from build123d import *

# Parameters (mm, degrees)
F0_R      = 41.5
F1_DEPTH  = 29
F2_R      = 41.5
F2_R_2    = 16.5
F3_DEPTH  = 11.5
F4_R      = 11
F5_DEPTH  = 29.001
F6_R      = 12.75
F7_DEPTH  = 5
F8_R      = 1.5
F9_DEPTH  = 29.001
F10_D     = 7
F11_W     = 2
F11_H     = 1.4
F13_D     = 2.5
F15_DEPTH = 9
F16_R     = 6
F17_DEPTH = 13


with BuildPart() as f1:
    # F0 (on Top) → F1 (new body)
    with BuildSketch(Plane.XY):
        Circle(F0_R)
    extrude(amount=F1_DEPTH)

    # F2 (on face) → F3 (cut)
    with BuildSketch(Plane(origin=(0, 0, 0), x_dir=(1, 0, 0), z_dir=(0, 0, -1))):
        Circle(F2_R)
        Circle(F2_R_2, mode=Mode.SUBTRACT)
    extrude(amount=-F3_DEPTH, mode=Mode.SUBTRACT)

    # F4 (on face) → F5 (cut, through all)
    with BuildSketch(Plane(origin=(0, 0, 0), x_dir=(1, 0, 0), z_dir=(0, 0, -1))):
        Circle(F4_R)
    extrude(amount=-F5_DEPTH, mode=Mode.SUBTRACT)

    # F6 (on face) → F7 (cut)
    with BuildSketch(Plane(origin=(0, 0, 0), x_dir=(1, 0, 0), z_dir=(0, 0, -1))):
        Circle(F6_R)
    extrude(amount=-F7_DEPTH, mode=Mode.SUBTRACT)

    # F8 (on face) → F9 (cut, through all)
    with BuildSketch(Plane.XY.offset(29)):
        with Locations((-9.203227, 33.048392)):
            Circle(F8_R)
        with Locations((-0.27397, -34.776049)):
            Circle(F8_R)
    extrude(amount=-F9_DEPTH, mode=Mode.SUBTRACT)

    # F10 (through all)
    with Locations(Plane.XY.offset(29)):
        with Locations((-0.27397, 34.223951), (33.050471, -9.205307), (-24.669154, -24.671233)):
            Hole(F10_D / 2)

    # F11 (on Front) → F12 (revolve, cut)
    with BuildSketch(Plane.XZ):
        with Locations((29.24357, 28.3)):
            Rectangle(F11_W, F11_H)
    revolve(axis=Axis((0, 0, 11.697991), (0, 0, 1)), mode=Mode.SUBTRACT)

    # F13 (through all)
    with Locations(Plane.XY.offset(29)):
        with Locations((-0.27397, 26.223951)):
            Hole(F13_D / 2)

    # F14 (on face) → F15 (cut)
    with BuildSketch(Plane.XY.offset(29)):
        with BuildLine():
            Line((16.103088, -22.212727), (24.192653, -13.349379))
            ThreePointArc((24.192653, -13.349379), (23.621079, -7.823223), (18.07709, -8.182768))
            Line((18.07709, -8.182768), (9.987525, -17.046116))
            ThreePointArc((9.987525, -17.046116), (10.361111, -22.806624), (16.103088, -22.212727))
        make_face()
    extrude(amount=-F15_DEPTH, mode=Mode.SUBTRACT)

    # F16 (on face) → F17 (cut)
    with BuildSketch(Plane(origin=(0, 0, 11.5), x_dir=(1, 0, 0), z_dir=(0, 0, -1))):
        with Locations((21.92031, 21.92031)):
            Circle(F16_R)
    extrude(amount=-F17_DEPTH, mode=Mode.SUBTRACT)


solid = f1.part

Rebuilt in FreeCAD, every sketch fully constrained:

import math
import FreeCAD as App
import Part
import Sketcher


def add_polygon(sketch, points):
    """Adds a closed chain of lines whose ends are joined by coincident constraints."""
    first, n = sketch.GeometryCount, len(points)
    for a, b in zip(points, points[1:] + points[:1]):
        sketch.addGeometry(Part.LineSegment(App.Vector(*a, 0), App.Vector(*b, 0)), False)
    for i in range(n):
        sketch.addConstraint(Sketcher.Constraint("Coincident", first + i, 2, first + (i + 1) % n, 1))

doc = App.newDocument("Part")
params = doc.addObject("Spreadsheet::Sheet", "Params")
for row, (alias, value) in enumerate([
    ("sketch1_diameter", "83 mm"),
    ("pad1_length", "29 mm"),
    ("sketch2_diameter", "83 mm"),
    ("sketch2_diameter2", "33 mm"),
    ("pocket1_length", "11.5 mm"),
    ("sketch3_diameter", "22 mm"),
    ("sketch4_diameter", "25.5 mm"),
    ("pocket3_length", "5 mm"),
    ("sketch5_diameter", "3 mm"),
    ("sketch6_diameter", "7 mm"),
    ("hole_diameter", "7 mm"),
    ("sketch7_width", "2 mm"),
    ("sketch7_height", "1.4 mm"),
    ("groove_angle", "360 deg"),
    ("sketch8_diameter", "2.5 mm"),
    ("hole2_diameter", "2.5 mm"),
    ("sketch9_length", "12 mm"),
    ("pocket5_length", "9 mm"),
    ("sketch10_diameter", "12 mm"),
    ("pocket6_length", "13 mm"),
], start=1):
    params.set(f"A{row}", alias)
    params.set(f"B{row}", "=" + value)
    params.setAlias(f"B{row}", alias)

body = doc.addObject("PartDesign::Body", "Body")

sketch1 = body.newObject("Sketcher::SketchObject", "Sketch")
sketch1.AttachmentSupport = (doc.getObject("XY_Plane"), [""])
sketch1.MapMode = "FlatFace"
sketch1.addGeometry(Part.Circle(App.Vector(0, 0, 0), App.Vector(0, 0, 1), 42), False)
sketch1.addConstraint([
    Sketcher.Constraint("Coincident", 0, 3, -1, 1),
    Sketcher.Constraint("Diameter", 0, 83.0),
])
sketch1.setExpression("Constraints[1]", "Params.sketch1_diameter")
pad1 = body.newObject("PartDesign::Pad", "Pad")
pad1.Profile = sketch1
pad1.setExpression("Length", "Params.pad1_length")

sketch2 = body.newObject("Sketcher::SketchObject", "Sketch001")
sketch2.AttachmentSupport = (doc.getObject("XY_Plane"), [""])
sketch2.MapMode = "FlatFace"
sketch2.addGeometry([
    Part.Circle(App.Vector(0, 0, 0), App.Vector(0, 0, 1), 42),
    Part.Circle(App.Vector(0, 0, 0), App.Vector(0, 0, 1), 16),
], False)
sketch2.addConstraint([
    Sketcher.Constraint("Coincident", 0, 3, -1, 1),
    Sketcher.Constraint("Coincident", 1, 3, -1, 1),
    Sketcher.Constraint("Diameter", 0, 83.0),
    Sketcher.Constraint("Diameter", 1, 33.0),
])
sketch2.setExpression("Constraints[2]", "Params.sketch2_diameter")
sketch2.setExpression("Constraints[3]", "Params.sketch2_diameter2")
pocket1 = body.newObject("PartDesign::Pocket", "Pocket")
pocket1.Profile = sketch2
pocket1.setExpression("Length", "Params.pocket1_length")
pocket1.Reversed = True

sketch3 = body.newObject("Sketcher::SketchObject", "Sketch002")
sketch3.AttachmentSupport = (doc.getObject("XY_Plane"), [""])
sketch3.MapMode = "FlatFace"
sketch3.addGeometry(Part.Circle(App.Vector(0, 0, 0), App.Vector(0, 0, 1), 11), False)
sketch3.addConstraint([
    Sketcher.Constraint("Coincident", 0, 3, -1, 1),
    Sketcher.Constraint("Diameter", 0, 22.0),
])
sketch3.setExpression("Constraints[1]", "Params.sketch3_diameter")
pocket2 = body.newObject("PartDesign::Pocket", "Pocket001")
pocket2.Profile = sketch3
pocket2.Type = "ThroughAll"
pocket2.Reversed = True

sketch4 = body.newObject("Sketcher::SketchObject", "Sketch003")
sketch4.AttachmentSupport = (doc.getObject("XY_Plane"), [""])
sketch4.MapMode = "FlatFace"
sketch4.addGeometry(Part.Circle(App.Vector(0, 0, 0), App.Vector(0, 0, 1), 13), False)
sketch4.addConstraint([
    Sketcher.Constraint("Coincident", 0, 3, -1, 1),
    Sketcher.Constraint("Diameter", 0, 25.5),
])
sketch4.setExpression("Constraints[1]", "Params.sketch4_diameter")
pocket3 = body.newObject("PartDesign::Pocket", "Pocket002")
pocket3.Profile = sketch4
pocket3.setExpression("Length", "Params.pocket3_length")
pocket3.Reversed = True

sketch5 = body.newObject("Sketcher::SketchObject", "Sketch004")
sketch5.AttachmentSupport = (doc.getObject("XY_Plane"), [""])
sketch5.MapMode = "FlatFace"
sketch5.AttachmentOffset = App.Placement(App.Vector(0, 0, 29), App.Rotation())
sketch5.addGeometry([
    Part.Circle(App.Vector(-9.2, 33, 0), App.Vector(0, 0, 1), 1.5),
    Part.Circle(App.Vector(-0.3, -34.8, 0), App.Vector(0, 0, 1), 1.5),
], False)
sketch5.addConstraint([
    Sketcher.Constraint("Equal", 0, 1),
    Sketcher.Constraint("Diameter", 0, 3.0),
    Sketcher.Constraint("DistanceX", 1, 3, -1, 1, 0.27397),
    Sketcher.Constraint("DistanceY", 1, 3, -1, 1, 34.776049),
    Sketcher.Constraint("DistanceY", 1, 3, 0, 3, 67.824441),
    Sketcher.Constraint("DistanceX", 0, 3, -1, 1, 9.203227),
])
sketch5.setExpression("Constraints[1]", "Params.sketch5_diameter")
pocket4 = body.newObject("PartDesign::Pocket", "Pocket003")
pocket4.Profile = sketch5
pocket4.Type = "ThroughAll"

sketch6 = body.newObject("Sketcher::SketchObject", "Sketch005")
sketch6.AttachmentSupport = (doc.getObject("XY_Plane"), [""])
sketch6.MapMode = "FlatFace"
sketch6.AttachmentOffset = App.Placement(App.Vector(0, 0, 29), App.Rotation())
sketch6.addGeometry([
    Part.Circle(App.Vector(-0.3, 34.2, 0), App.Vector(0, 0, 1), 3.5),
    Part.Circle(App.Vector(33.1, -9.2, 0), App.Vector(0, 0, 1), 3.5),
    Part.Circle(App.Vector(-24.7, -24.7, 0), App.Vector(0, 0, 1), 3.5),
], False)
sketch6.addConstraint([
    Sketcher.Constraint("Equal", 0, 1),
    Sketcher.Constraint("Equal", 1, 2),
    Sketcher.Constraint("Diameter", 0, 7.0),
    Sketcher.Constraint("DistanceX", 0, 3, -1, 1, 0.27397),
    Sketcher.Constraint("DistanceY", -1, 1, 0, 3, 34.223951),
    Sketcher.Constraint("DistanceX", -1, 1, 1, 3, 33.050471),
    Sketcher.Constraint("DistanceY", 1, 3, -1, 1, 9.205307),
    Sketcher.Constraint("DistanceX", 2, 3, -1, 1, 24.669154),
    Sketcher.Constraint("DistanceY", 2, 3, -1, 1, 24.671233),
])
sketch6.setExpression("Constraints[2]", "Params.sketch6_diameter")
doc.recompute()
hole = body.newObject("PartDesign::Hole", "Hole")
hole.Profile = sketch6
hole.ThreadType = "None"
hole.setExpression("Diameter", "Params.hole_diameter")
hole.DepthType = "ThroughAll"

sketch7 = body.newObject("Sketcher::SketchObject", "Sketch006")
sketch7.AttachmentSupport = (doc.getObject("XZ_Plane"), [""])
sketch7.MapMode = "FlatFace"
add_polygon(sketch7, [(28.2, 29), (28.2, 27.6), (30.2, 27.6), (30.2, 29)])
sketch7.addConstraint([
    Sketcher.Constraint("Vertical", 0),
    Sketcher.Constraint("Horizontal", 1),
    Sketcher.Constraint("Vertical", 2),
    Sketcher.Constraint("Horizontal", 3),
    Sketcher.Constraint("DistanceX", 1, 1, 1, 2, 2.0),
    Sketcher.Constraint("DistanceY", 0, 2, 0, 1, 1.4),
    Sketcher.Constraint("DistanceY", -1, 1, 2, 2, 29.0),
    Sketcher.Constraint("DistanceX", -1, 1, 0, 2, 28.24357),
])
sketch7.setExpression("Constraints[8]", "Params.sketch7_width")
sketch7.setExpression("Constraints[9]", "Params.sketch7_height")
groove = body.newObject("PartDesign::Groove", "Groove")
groove.Profile = sketch7
groove.ReferenceAxis = (sketch7, ["V_Axis"])
groove.setExpression("Angle", "Params.groove_angle")

sketch8 = body.newObject("Sketcher::SketchObject", "Sketch007")
sketch8.AttachmentSupport = (doc.getObject("XY_Plane"), [""])
sketch8.MapMode = "FlatFace"
sketch8.AttachmentOffset = App.Placement(App.Vector(0, 0, 29), App.Rotation())
sketch8.addGeometry(Part.Circle(App.Vector(-0.3, 26.2, 0), App.Vector(0, 0, 1), 1.2), False)
sketch8.addConstraint([
    Sketcher.Constraint("Diameter", 0, 2.5),
    Sketcher.Constraint("DistanceX", 0, 3, -1, 1, 0.27397),
    Sketcher.Constraint("DistanceY", -1, 1, 0, 3, 26.223951),
])
sketch8.setExpression("Constraints[0]", "Params.sketch8_diameter")
doc.recompute()
hole2 = body.newObject("PartDesign::Hole", "Hole001")
hole2.Profile = sketch8
hole2.ThreadType = "None"
hole2.setExpression("Diameter", "Params.hole2_diameter")
hole2.DepthType = "ThroughAll"

sketch9 = body.newObject("Sketcher::SketchObject", "Sketch008")
sketch9.AttachmentSupport = (doc.getObject("XY_Plane"), [""])
sketch9.MapMode = "FlatFace"
sketch9.AttachmentOffset = App.Placement(App.Vector(0, 0, 29), App.Rotation())
sketch9.addGeometry([
    Part.LineSegment(App.Vector(16.1, -22.2, 0), App.Vector(24.2, -13.3, 0)),
    Part.ArcOfCircle(Part.Circle(App.Vector(21, -10.9, 0), App.Vector(0, 0, 1), 4), math.radians(-38), math.radians(138)),
    Part.LineSegment(App.Vector(18.1, -8.2, 0), App.Vector(10, -17, 0)),
    Part.ArcOfCircle(Part.Circle(App.Vector(12.9, -19.7, 0), App.Vector(0, 0, 1), 4), math.radians(138), math.radians(322)),
], False)
sketch9.addConstraint([
    Sketcher.Constraint("Coincident", 0, 2, 1, 1),
    Sketcher.Constraint("Tangent", 1, 2, 2, 1),
    Sketcher.Constraint("Tangent", 2, 2, 3, 1),
    Sketcher.Constraint("Coincident", 3, 2, 0, 1),
    Sketcher.Constraint("Equal", 1, 3),
    Sketcher.Constraint("Parallel", 0, 2),
    Sketcher.Constraint("Distance", 0, 12.0),
    Sketcher.Constraint("Radius", 1, 4.005874),
    Sketcher.Constraint("DistanceY", 1, 3, -1, 1, 10.883249),
    Sketcher.Constraint("DistanceY", 0, 2, -1, 1, 13.349379),
    Sketcher.Constraint("DistanceX", -1, 1, 1, 2, 18.07709),
    Sketcher.Constraint("DistanceY", 1, 2, -1, 1, 8.182768),
])
sketch9.setExpression("Constraints[6]", "Params.sketch9_length")
pocket5 = body.newObject("PartDesign::Pocket", "Pocket004")
pocket5.Profile = sketch9
pocket5.setExpression("Length", "Params.pocket5_length")

sketch10 = body.newObject("Sketcher::SketchObject", "Sketch009")
sketch10.AttachmentSupport = (doc.getObject("XY_Plane"), [""])
sketch10.MapMode = "FlatFace"
sketch10.AttachmentOffset = App.Placement(App.Vector(0, 0, 11.5), App.Rotation())
sketch10.addGeometry(Part.Circle(App.Vector(22, -22, 0), App.Vector(0, 0, 1), 6), False)
sketch10.addConstraint([
    Sketcher.Constraint("Diameter", 0, 12.0),
    Sketcher.Constraint("DistanceX", -1, 1, 0, 3, 21.92031),
    Sketcher.Constraint("DistanceY", 0, 3, -1, 1, 21.92031),
])
sketch10.setExpression("Constraints[0]", "Params.sketch10_diameter")
pocket6 = body.newObject("PartDesign::Pocket", "Pocket005")
pocket6.Profile = sketch10
pocket6.setExpression("Length", "Params.pocket6_length")
pocket6.Reversed = True

doc.recompute()
